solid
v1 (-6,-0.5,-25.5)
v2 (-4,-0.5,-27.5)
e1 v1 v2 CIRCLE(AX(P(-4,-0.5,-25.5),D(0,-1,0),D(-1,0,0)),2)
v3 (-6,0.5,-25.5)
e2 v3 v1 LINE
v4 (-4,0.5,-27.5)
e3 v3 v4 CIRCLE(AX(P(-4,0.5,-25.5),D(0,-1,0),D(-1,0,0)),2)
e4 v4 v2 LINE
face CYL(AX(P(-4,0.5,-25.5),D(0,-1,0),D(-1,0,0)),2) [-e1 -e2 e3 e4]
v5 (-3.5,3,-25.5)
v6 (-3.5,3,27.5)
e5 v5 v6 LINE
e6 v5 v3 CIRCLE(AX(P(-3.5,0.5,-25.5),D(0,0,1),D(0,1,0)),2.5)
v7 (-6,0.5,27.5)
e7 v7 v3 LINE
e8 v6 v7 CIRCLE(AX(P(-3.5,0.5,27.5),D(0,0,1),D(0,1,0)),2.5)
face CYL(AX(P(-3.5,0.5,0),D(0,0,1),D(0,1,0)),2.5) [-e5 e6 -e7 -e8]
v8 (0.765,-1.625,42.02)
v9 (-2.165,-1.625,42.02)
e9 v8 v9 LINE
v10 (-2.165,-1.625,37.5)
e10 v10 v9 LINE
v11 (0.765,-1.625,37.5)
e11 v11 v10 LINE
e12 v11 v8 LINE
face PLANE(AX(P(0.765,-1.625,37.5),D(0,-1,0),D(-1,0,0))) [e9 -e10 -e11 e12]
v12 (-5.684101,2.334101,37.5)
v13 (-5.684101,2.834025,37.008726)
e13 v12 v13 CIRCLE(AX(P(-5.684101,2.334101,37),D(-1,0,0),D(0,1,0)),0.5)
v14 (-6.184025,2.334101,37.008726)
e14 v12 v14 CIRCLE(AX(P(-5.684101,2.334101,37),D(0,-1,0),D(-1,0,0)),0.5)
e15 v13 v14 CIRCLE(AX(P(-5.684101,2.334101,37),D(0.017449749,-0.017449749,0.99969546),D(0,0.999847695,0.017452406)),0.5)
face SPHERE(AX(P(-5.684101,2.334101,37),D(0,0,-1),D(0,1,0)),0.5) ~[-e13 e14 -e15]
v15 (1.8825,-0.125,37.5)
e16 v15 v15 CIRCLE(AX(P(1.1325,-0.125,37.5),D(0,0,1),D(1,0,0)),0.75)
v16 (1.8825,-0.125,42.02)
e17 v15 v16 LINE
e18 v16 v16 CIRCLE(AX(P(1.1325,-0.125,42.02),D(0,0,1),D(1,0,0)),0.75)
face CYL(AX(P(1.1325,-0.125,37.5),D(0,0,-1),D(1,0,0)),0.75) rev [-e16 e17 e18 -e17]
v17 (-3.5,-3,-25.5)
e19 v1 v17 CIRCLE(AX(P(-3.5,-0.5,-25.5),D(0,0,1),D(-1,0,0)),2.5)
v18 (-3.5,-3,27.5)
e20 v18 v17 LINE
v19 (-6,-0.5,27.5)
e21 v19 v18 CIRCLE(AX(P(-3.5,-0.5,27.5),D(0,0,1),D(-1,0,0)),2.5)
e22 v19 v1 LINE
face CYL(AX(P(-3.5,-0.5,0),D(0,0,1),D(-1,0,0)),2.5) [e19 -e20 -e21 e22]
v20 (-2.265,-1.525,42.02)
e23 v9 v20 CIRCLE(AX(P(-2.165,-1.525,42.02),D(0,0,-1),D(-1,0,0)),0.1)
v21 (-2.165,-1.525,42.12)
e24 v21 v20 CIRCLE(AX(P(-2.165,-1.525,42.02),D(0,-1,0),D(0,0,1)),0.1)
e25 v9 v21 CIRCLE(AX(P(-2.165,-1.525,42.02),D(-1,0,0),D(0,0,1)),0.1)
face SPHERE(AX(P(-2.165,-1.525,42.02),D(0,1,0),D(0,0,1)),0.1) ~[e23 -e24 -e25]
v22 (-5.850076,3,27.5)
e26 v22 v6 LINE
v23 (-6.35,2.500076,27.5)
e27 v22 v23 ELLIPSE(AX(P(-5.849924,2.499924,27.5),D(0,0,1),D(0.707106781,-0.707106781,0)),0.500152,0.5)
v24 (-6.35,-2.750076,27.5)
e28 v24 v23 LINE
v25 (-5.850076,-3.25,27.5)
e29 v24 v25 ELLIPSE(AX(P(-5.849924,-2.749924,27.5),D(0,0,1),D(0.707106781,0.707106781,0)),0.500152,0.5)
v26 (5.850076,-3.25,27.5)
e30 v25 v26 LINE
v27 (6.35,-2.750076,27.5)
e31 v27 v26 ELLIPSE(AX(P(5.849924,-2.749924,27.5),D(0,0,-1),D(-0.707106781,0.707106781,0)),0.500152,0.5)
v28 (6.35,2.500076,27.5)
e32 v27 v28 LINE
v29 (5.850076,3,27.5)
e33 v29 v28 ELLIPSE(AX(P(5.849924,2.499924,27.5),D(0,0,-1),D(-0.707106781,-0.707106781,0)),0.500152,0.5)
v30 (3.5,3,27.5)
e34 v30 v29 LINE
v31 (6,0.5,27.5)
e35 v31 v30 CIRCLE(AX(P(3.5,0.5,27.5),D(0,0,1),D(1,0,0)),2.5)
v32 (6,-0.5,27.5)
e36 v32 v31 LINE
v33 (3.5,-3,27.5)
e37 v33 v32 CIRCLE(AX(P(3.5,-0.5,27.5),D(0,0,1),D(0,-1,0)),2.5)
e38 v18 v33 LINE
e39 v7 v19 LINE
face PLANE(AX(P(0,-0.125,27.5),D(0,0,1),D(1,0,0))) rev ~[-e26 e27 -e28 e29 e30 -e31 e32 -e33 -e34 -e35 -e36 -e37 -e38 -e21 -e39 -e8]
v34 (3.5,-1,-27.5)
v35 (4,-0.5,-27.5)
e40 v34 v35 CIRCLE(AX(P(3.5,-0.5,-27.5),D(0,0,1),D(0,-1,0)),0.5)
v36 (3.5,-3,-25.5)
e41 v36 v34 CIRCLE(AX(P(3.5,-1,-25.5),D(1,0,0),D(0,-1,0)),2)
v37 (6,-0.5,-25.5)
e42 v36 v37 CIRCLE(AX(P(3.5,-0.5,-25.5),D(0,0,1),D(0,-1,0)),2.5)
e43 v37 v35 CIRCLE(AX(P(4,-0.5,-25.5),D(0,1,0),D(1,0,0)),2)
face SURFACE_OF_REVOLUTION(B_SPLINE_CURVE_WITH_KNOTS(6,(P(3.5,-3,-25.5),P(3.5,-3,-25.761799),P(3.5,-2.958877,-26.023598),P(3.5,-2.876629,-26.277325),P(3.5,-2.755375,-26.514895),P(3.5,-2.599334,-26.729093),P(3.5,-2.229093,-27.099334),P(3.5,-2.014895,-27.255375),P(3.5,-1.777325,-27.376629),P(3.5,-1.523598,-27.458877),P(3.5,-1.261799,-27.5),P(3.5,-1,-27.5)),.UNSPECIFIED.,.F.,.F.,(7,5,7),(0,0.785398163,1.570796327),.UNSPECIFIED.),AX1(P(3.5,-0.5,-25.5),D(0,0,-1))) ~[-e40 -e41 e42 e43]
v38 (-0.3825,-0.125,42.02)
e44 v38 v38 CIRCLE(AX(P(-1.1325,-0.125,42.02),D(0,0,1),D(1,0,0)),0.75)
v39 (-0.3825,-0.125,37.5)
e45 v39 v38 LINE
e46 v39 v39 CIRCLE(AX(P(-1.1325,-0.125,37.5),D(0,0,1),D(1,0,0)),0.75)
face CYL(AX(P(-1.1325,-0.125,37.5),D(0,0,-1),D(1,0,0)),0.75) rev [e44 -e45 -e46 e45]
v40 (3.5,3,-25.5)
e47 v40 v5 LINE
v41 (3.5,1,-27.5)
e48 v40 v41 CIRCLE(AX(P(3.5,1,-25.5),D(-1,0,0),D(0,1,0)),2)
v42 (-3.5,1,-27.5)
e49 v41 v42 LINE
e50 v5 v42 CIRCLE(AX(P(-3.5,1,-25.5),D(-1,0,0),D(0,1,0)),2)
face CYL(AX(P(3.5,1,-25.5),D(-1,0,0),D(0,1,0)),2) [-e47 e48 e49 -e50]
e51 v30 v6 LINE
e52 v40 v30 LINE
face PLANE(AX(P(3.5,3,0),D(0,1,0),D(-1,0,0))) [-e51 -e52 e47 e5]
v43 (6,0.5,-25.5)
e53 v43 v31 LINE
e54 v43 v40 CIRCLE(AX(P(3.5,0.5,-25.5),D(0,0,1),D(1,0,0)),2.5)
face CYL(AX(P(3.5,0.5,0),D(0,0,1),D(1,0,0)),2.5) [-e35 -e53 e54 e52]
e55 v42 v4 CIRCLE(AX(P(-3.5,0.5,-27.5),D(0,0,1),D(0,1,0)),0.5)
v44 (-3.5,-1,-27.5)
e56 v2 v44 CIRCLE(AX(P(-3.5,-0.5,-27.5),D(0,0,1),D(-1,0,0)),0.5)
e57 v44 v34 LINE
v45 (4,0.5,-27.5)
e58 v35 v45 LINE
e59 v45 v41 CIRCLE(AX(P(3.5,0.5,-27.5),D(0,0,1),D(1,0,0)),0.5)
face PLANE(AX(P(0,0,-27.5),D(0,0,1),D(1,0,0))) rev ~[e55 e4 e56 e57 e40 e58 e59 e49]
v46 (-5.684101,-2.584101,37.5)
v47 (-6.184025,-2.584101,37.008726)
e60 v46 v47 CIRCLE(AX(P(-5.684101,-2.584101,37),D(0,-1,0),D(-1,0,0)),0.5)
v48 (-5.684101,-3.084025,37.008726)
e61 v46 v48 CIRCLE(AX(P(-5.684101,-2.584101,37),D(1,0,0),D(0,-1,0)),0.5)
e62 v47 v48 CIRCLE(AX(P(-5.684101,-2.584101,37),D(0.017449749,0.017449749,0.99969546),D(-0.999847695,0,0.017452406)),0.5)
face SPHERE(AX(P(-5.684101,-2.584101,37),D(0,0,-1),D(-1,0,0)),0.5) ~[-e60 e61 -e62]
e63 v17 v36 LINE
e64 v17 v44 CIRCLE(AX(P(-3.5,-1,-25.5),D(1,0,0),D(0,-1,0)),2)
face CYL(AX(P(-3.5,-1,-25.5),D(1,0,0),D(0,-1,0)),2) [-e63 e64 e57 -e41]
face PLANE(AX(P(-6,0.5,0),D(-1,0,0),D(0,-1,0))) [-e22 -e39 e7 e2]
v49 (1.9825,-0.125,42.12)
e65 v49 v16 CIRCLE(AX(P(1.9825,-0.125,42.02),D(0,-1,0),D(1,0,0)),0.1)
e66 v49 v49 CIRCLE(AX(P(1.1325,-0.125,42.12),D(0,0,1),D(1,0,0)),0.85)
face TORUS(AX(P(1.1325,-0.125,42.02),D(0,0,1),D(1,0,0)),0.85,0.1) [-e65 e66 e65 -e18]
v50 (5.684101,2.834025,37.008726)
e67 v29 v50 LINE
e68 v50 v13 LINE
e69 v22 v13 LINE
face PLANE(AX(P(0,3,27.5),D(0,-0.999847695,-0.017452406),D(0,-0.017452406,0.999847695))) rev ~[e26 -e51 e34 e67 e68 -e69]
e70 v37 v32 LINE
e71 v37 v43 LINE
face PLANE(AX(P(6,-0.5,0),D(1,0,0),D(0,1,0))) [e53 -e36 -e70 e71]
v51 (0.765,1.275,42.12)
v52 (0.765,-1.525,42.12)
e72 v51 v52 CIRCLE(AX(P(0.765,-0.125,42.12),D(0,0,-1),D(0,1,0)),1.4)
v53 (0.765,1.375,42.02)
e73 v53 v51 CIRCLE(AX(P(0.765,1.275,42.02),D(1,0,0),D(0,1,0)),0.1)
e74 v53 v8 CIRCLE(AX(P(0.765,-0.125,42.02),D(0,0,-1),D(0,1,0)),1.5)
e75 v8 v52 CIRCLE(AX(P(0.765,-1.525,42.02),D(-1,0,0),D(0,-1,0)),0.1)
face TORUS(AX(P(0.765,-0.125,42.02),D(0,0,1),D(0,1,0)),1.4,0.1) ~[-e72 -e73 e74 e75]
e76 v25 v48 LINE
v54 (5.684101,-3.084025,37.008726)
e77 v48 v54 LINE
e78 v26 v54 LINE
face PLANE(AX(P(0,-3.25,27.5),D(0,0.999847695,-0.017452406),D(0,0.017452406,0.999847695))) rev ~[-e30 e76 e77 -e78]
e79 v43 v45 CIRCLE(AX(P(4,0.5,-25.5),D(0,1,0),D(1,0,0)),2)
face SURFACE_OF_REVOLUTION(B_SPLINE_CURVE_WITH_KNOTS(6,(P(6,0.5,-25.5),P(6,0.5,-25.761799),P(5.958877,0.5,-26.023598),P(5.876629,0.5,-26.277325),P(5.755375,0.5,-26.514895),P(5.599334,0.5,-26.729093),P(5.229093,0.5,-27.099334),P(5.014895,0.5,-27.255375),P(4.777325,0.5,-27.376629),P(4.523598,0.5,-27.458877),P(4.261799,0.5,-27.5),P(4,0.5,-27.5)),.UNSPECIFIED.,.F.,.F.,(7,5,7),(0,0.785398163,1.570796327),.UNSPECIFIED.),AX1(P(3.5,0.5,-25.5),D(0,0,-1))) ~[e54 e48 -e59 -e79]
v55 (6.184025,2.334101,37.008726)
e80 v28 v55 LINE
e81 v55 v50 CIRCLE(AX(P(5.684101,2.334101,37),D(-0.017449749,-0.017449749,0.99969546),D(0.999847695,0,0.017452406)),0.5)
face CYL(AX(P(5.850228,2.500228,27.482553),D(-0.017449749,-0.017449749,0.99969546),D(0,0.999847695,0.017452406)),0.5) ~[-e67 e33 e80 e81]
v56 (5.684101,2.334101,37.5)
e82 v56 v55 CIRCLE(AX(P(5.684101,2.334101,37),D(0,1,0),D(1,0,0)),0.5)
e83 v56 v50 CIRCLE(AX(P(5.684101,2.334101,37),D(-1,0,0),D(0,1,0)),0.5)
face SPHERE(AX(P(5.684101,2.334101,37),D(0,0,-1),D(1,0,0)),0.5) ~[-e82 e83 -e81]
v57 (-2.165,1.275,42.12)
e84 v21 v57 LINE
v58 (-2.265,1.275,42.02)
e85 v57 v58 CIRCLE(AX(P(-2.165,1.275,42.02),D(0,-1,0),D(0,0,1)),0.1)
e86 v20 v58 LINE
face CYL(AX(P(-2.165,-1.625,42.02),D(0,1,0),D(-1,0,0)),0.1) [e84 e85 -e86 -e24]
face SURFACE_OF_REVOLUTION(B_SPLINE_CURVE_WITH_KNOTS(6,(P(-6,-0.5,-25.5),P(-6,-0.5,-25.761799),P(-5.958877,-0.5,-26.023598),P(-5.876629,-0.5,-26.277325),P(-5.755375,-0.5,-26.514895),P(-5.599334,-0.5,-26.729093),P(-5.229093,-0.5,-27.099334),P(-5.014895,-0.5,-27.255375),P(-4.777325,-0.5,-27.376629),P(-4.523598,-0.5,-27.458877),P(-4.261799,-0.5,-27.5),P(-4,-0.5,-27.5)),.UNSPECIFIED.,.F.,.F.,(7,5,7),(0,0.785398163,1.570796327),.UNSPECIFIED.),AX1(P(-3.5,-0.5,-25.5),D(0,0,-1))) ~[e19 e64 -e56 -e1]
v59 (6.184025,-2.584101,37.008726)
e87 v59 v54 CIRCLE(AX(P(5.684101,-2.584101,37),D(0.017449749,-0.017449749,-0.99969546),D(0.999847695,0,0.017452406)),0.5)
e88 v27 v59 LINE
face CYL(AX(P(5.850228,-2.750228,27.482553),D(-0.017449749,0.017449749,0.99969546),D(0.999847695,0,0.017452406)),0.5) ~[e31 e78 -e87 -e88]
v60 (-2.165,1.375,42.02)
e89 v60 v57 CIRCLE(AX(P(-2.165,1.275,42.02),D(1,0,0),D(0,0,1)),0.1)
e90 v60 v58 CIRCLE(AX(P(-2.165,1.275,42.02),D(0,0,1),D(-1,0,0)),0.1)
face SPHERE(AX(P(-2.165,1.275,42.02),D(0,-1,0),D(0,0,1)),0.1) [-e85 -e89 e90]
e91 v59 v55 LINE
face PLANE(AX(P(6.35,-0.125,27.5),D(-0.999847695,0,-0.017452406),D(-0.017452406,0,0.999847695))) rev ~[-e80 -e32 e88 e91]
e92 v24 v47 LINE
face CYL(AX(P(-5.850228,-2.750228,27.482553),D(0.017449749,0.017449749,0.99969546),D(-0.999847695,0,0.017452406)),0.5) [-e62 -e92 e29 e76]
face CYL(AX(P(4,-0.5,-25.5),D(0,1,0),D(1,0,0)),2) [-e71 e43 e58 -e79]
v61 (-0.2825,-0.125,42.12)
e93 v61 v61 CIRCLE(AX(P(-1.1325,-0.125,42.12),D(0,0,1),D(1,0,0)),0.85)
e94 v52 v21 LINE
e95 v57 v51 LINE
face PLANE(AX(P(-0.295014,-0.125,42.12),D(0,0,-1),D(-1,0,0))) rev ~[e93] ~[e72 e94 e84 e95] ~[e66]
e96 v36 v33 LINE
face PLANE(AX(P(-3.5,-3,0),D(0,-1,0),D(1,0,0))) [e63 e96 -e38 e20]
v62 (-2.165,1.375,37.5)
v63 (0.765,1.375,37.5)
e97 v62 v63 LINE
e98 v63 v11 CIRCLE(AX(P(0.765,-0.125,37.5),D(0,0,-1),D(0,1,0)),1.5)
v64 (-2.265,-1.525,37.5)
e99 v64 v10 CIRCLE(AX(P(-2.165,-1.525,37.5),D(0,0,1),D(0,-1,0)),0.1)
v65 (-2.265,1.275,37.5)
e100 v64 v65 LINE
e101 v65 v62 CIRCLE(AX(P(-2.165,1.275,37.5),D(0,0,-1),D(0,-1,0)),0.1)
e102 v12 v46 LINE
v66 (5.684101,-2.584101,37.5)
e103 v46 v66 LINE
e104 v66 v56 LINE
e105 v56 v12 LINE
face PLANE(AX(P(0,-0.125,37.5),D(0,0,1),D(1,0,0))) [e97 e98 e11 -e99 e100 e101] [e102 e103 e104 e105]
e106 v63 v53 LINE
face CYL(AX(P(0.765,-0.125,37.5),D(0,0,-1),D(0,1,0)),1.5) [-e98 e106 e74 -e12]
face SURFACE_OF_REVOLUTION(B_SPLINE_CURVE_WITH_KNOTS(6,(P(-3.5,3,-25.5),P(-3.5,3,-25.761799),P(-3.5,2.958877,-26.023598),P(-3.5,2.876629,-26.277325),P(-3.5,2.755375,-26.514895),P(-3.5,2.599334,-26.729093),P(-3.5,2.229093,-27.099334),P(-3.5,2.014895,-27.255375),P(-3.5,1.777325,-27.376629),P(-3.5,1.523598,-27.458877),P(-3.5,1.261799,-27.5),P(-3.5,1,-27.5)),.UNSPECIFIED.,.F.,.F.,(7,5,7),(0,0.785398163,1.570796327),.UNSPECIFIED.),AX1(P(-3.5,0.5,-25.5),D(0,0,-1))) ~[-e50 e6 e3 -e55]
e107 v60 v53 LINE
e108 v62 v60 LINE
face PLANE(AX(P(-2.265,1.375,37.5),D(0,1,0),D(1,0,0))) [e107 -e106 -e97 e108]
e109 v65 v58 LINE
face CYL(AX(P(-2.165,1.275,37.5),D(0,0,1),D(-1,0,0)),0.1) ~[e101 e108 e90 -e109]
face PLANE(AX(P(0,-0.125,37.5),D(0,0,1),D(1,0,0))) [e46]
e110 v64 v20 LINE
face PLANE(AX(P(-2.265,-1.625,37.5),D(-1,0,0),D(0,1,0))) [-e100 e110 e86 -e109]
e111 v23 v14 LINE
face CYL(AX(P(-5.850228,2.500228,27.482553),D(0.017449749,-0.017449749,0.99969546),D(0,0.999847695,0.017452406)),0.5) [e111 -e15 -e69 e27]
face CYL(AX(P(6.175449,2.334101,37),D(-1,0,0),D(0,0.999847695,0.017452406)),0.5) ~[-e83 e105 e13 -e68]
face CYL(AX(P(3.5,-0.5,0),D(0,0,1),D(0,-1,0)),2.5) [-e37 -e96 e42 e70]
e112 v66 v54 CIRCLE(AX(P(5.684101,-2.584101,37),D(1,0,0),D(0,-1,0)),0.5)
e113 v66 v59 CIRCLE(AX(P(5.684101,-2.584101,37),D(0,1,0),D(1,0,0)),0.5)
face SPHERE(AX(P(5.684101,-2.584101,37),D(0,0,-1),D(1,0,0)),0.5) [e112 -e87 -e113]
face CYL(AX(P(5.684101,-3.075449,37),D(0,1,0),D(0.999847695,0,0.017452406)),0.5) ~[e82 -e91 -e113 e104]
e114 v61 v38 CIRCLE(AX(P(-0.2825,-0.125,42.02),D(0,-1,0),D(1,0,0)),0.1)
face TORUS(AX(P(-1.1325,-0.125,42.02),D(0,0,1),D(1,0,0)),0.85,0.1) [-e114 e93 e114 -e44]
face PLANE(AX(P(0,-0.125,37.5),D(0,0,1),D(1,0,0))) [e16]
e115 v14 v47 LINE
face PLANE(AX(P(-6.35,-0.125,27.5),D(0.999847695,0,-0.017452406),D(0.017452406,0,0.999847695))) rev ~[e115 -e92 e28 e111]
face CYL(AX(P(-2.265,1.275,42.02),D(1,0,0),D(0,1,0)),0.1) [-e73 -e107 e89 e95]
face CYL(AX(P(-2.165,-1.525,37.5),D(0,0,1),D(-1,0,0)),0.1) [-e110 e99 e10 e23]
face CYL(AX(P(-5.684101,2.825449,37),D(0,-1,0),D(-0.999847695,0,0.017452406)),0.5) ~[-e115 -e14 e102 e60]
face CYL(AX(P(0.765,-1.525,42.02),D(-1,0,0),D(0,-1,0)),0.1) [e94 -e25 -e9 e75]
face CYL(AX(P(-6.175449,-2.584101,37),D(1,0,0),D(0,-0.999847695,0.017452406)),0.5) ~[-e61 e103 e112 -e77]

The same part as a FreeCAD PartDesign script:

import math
import FreeCAD as App
import Part
import Sketcher

V = App.Vector


def edges_at(feature, points):
    """Names of the edges that pass closest to the given points."""
    edges = feature.Shape.Edges
    near = lambda p: min(range(len(edges)), key=lambda i: edges[i].distToShape(Part.Vertex(*p))[0])
    return sorted({f"Edge{near(p) + 1}" for p in points})

doc = App.newDocument("Part")
body = doc.addObject("PartDesign::Body", "Body")

sketch1 = doc.addObject("Sketcher::SketchObject", "Sketch")
body.addObject(sketch1)
sketch1.AttachmentSupport = (doc.XY_Plane, [""])
sketch1.MapMode = "FlatFace"
sketch1.addGeometry(Part.LineSegment(V(-3.5, -3, 0), V(3.5, -3, 0)), False)
sketch1.addGeometry(Part.ArcOfCircle(Part.Circle(V(3.5, -0.5, 0), V(0, 0, 1), 2.5), math.radians(-90), math.radians(0)), False)
sketch1.addGeometry(Part.LineSegment(V(6, -0.5, 0), V(6, 0.5, 0)), False)
sketch1.addGeometry(Part.ArcOfCircle(Part.Circle(V(3.5, 0.5, 0), V(0, 0, 1), 2.5), math.radians(0), math.radians(90)), False)
sketch1.addGeometry(Part.LineSegment(V(3.5, 3, 0), V(-3.5, 3, 0)), False)
sketch1.addGeometry(Part.ArcOfCircle(Part.Circle(V(-3.5, 0.5, 0), V(0, 0, 1), 2.5), math.radians(90), math.radians(180)), False)
sketch1.addGeometry(Part.LineSegment(V(-6, 0.5, 0), V(-6, -0.5, 0)), False)
sketch1.addGeometry(Part.ArcOfCircle(Part.Circle(V(-3.5, -0.5, 0), V(0, 0, 1), 2.5), math.radians(180), math.radians(270)), False)
sketch1.addConstraint(Sketcher.Constraint("Tangent", 0, 2, 1, 1))
sketch1.addConstraint(Sketcher.Constraint("Tangent", 1, 2, 2, 1))
sketch1.addConstraint(Sketcher.Constraint("Tangent", 2, 2, 3, 1))
sketch1.addConstraint(Sketcher.Constraint("Tangent", 3, 2, 4, 1))
sketch1.addConstraint(Sketcher.Constraint("Tangent", 4, 2, 5, 1))
sketch1.addConstraint(Sketcher.Constraint("Tangent", 5, 2, 6, 1))
sketch1.addConstraint(Sketcher.Constraint("Tangent", 6, 2, 7, 1))
sketch1.addConstraint(Sketcher.Constraint("Tangent", 7, 2, 0, 1))
sketch1.addConstraint(Sketcher.Constraint("Horizontal", 0))
sketch1.addConstraint(Sketcher.Constraint("Vertical", 2))
sketch1.addConstraint(Sketcher.Constraint("Horizontal", 4))
sketch1.addConstraint(Sketcher.Constraint("Vertical", 6))
sketch1.addConstraint(Sketcher.Constraint("Equal", 1, 3))
sketch1.addConstraint(Sketcher.Constraint("Equal", 3, 5))
sketch1.addConstraint(Sketcher.Constraint("Equal", 5, 7))
sketch1.addConstraint(Sketcher.Constraint("Symmetric", 1, 3, 5, 3, -1, 1))
sketch1.addConstraint(Sketcher.Constraint("Radius", 1, 2.5))
sketch1.addConstraint(Sketcher.Constraint("DistanceX", 0, 1, 0, 2, 7.0))
sketch1.addConstraint(Sketcher.Constraint("DistanceY", 2, 1, 2, 2, 1.0))
pad1 = doc.addObject("PartDesign::Pad", "Pad")
body.addObject(pad1)
pad1.Profile = sketch1
pad1.Length = 55
pad1.Midplane = True

sketch2 = doc.addObject("Sketcher::SketchObject", "Sketch001")
body.addObject(sketch2)
sketch2.AttachmentSupport = (doc.XY_Plane, [""])
sketch2.MapMode = "FlatFace"
sketch2.AttachmentOffset = App.Placement(V(0, 0, 27.5), App.Rotation())
sketch2.addGeometry(Part.LineSegment(V(-6, 3, 0), V(-6, -3, 0)), False)
sketch2.addGeometry(Part.LineSegment(V(-6, -3, 0), V(6, -3, 0)), False)
sketch2.addGeometry(Part.LineSegment(V(6, -3, 0), V(6, 3, 0)), False)
sketch2.addGeometry(Part.LineSegment(V(6, 3, 0), V(-6, 3, 0)), False)
sketch2.addConstraint(Sketcher.Constraint("Coincident", 0, 2, 1, 1))
sketch2.addConstraint(Sketcher.Constraint("Coincident", 1, 2, 2, 1))
sketch2.addConstraint(Sketcher.Constraint("Coincident", 2, 2, 3, 1))
sketch2.addConstraint(Sketcher.Constraint("Coincident", 3, 2, 0, 1))
sketch2.addConstraint(Sketcher.Constraint("Vertical", 0))
sketch2.addConstraint(Sketcher.Constraint("Horizontal", 1))
sketch2.addConstraint(Sketcher.Constraint("Vertical", 2))
sketch2.addConstraint(Sketcher.Constraint("Horizontal", 3))
sketch2.addConstraint(Sketcher.Constraint("DistanceX", 1, 1, 1, 2, 12.7))
sketch2.addConstraint(Sketcher.Constraint("DistanceY", -1, 1, 2, 2, 3.0))
sketch2.addConstraint(Sketcher.Constraint("DistanceY", 0, 2, 0, 1, 6.25))
sketch2.addConstraint(Sketcher.Constraint("DistanceX", 0, 2, -1, 1, 6.35))
pad2 = doc.addObject("PartDesign::Pad", "Pad001")
body.addObject(pad2)
pad2.Profile = sketch2
pad2.Length = 10
pad2.TaperAngle = -1
doc.recompute()

fillet = doc.addObject("PartDesign::Fillet", "Fillet")
body.addObject(fillet)
fillet.Base = (pad2, edges_at(pad2, [
    (6, 0, -27.5),
    (5.268, -2.268, -27.5),
    (0, -3, -27.5),
    (-5.268, -2.268, -27.5),
    (-6, 0, -27.5),
    (-5.268, 2.268, -27.5),
    (0, 3, -27.5),
    (5.268, 2.268, -27.5),
]))
fillet.Radius = 2

sketch3 = doc.addObject("Sketcher::SketchObject", "Sketch002")
body.addObject(sketch3)
sketch3.AttachmentSupport = (doc.XY_Plane, [""])
sketch3.MapMode = "FlatFace"
sketch3.AttachmentOffset = App.Placement(V(0, 0, 37.5), App.Rotation())
sketch3.addGeometry(Part.LineSegment(V(0.8, 1.4, 0), V(-2.3, 1.4, 0)), False)
sketch3.addGeometry(Part.LineSegment(V(-2.3, 1.4, 0), V(-2.3, -1.6, 0)), False)
sketch3.addGeometry(Part.LineSegment(V(-2.3, -1.6, 0), V(0.8, -1.6, 0)), False)
sketch3.addGeometry(Part.ArcOfCircle(Part.Circle(V(0.8, -0.1, 0), V(0, 0, 1), 1.5), math.radians(-90), math.radians(90)), False)
sketch3.addGeometry(Part.Circle(V(1.1, -0.1, 0), V(0, 0, 1), 0.8), False)
sketch3.addGeometry(Part.Circle(V(-1.1, -0.1, 0), V(0, 0, 1), 0.8), False)
sketch3.addConstraint(Sketcher.Constraint("Coincident", 0, 2, 1, 1))
sketch3.addConstraint(Sketcher.Constraint("Coincident", 1, 2, 2, 1))
sketch3.addConstraint(Sketcher.Constraint("Tangent", 2, 2, 3, 1))
sketch3.addConstraint(Sketcher.Constraint("Tangent", 3, 2, 0, 1))
sketch3.addConstraint(Sketcher.Constraint("Horizontal", 0))
sketch3.addConstraint(Sketcher.Constraint("Vertical", 1))
sketch3.addConstraint(Sketcher.Constraint("Horizontal", 2))
sketch3.addConstraint(Sketcher.Constraint("Equal", 4, 5))
sketch3.addConstraint(Sketcher.Constraint("Symmetric", 4, 3, 5, 3, -2))
sketch3.addConstraint(Sketcher.Constraint("Horizontal", 3, 3, 4, 3))
sketch3.addConstraint(Sketcher.Constraint("Diameter", 4, 1.5))
sketch3.addConstraint(Sketcher.Constraint("Radius", 3, 1.5))
sketch3.addConstraint(Sketcher.Constraint("DistanceX", 0, 2, 0, 1, 3.03))
sketch3.addConstraint(Sketcher.Constraint("DistanceX", -1, 1, 3, 3, 0.765))
sketch3.addConstraint(Sketcher.Constraint("DistanceY", 3, 3, -1, 1, 0.125))
sketch3.addConstraint(Sketcher.Constraint("DistanceX", 5, 3, 4, 3, 2.265))
pad3 = doc.addObject("PartDesign::Pad", "Pad002")
body.addObject(pad3)
pad3.Profile = sketch3
pad3.Length = 4.62
doc.recompute()

fillet2 = doc.addObject("PartDesign::Fillet", "Fillet001")
body.addObject(fillet2)
fillet2.Base = (pad3, edges_at(pad3, [
    (6.263, -3.163, 32.5),
    (6.263, 2.913, 32.5),
    (-6.263, 2.913, 32.5),
    (-6.263, -3.163, 32.5),
    (6.175, -0.125, 37.5),
    (0, 2.825, 37.5),
    (-6.175, -0.125, 37.5),
    (0, -3.075, 37.5),
]))
fillet2.Radius = 0.5
doc.recompute()

fillet3 = doc.addObject("PartDesign::Fillet", "Fillet002")
body.addObject(fillet3)
fillet3.Base = (fillet2, edges_at(fillet2, [
    (-2.265, -0.125, 42.12),
    (-0.75, -1.625, 42.12),
    (2.265, -0.125, 42.12),
    (-0.75, 1.375, 42.12),
    (-2.265, 1.375, 39.81),
    (-2.265, -1.625, 39.81),
    (-1.883, -0.125, 42.12),
    (0.383, -0.125, 42.12),
]))
fillet3.Radius = 0.1

doc.recompute()
